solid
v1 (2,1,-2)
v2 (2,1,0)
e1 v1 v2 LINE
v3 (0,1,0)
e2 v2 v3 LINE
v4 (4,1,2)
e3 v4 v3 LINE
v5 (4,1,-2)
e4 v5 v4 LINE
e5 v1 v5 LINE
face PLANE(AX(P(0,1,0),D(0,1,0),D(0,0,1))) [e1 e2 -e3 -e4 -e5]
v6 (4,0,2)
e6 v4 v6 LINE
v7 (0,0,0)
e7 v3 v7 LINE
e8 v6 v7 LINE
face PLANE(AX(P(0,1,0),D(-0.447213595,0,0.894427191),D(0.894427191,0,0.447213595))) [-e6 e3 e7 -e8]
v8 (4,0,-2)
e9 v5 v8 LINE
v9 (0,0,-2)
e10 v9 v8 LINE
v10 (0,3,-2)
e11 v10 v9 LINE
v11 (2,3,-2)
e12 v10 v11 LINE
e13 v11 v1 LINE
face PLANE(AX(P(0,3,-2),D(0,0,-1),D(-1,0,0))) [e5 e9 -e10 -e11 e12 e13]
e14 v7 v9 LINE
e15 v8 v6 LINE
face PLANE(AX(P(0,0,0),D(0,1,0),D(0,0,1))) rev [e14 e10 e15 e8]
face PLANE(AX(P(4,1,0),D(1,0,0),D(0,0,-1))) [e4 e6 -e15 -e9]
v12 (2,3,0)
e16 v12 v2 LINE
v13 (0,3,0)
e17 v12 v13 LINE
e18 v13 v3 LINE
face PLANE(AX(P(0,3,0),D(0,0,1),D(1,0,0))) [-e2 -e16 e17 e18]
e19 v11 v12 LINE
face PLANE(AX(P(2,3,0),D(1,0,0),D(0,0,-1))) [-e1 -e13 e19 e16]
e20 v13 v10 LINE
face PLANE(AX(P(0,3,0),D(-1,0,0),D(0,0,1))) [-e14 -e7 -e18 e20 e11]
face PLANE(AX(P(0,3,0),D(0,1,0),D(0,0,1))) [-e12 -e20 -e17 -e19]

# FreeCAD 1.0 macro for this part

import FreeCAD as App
import Part
import Sketcher
from FreeCAD import Vector


def add_polygon(sketch, points):
    """Adds a closed chain of lines whose ends are joined by coincident constraints."""
    first, n = sketch.GeometryCount, len(points)
    for a, b in zip(points, points[1:] + points[:1]):
        sketch.addGeometry(Part.LineSegment(App.Vector(*a, 0), App.Vector(*b, 0)), False)
    for i in range(n):
        sketch.addConstraint(Sketcher.Constraint("Coincident", first + i, 2, first + (i + 1) % n, 1))

doc = App.newDocument("Part")
body = doc.addObject("PartDesign::Body", "Body")

# Sketch on XZ plane
sketch1 = body.newObject("Sketcher::SketchObject", "Sketch")
sketch1.AttachmentSupport = (doc.getObject("XZ_Plane"), [""])
sketch1.MapMode = "FlatFace"
add_polygon(sketch1, [(0, -2), (0, 0), (2, 0), (2, -2)])  # lines 0-3
sketch1.addConstraint(Sketcher.Constraint("Vertical", 0))
sketch1.addConstraint(Sketcher.Constraint("Horizontal", 1))
sketch1.addConstraint(Sketcher.Constraint("Vertical", 2))
sketch1.addConstraint(Sketcher.Constraint("Horizontal", 3))
sketch1.addConstraint(Sketcher.Constraint("Coincident", 0, 2, -1, 1))
sketch1.addConstraint(Sketcher.Constraint("Equal", 3, 0))
sketch1.addConstraint(Sketcher.Constraint("DistanceX", 1, 1, 1, 2, 2.0))
pad1 = body.newObject("PartDesign::Pad", "Pad")
pad1.Profile = sketch1
pad1.Length = 3
pad1.Reversed = True

# Sketch on XZ plane
sketch2 = body.newObject("Sketcher::SketchObject", "Sketch001")
sketch2.AttachmentSupport = (doc.getObject("XZ_Plane"), [""])
sketch2.MapMode = "FlatFace"
add_polygon(sketch2, [(2, 0), (0, 0), (4, 2), (4, -2), (2, -2)])  # lines 0-4
sketch2.addConstraint(Sketcher.Constraint("Horizontal", 0))
sketch2.addConstraint(Sketcher.Constraint("Vertical", 2))
sketch2.addConstraint(Sketcher.Constraint("Horizontal", 3))
sketch2.addConstraint(Sketcher.Constraint("Vertical", 4))
sketch2.addConstraint(Sketcher.Constraint("Coincident", 0, 2, -1, 1))
sketch2.addConstraint(Sketcher.Constraint("Equal", 0, 3))
sketch2.addConstraint(Sketcher.Constraint("Equal", 3, 4))
sketch2.addConstraint(Sketcher.Constraint("DistanceX", 0, 2, 0, 1, 2.0))
sketch2.addConstraint(Sketcher.Constraint("DistanceY", 2, 2, 2, 1, 4.0))
pad2 = body.newObject("PartDesign::Pad", "Pad001")
pad2.Profile = sketch2
pad2.Length = 1
pad2.Reversed = True

doc.recompute()
